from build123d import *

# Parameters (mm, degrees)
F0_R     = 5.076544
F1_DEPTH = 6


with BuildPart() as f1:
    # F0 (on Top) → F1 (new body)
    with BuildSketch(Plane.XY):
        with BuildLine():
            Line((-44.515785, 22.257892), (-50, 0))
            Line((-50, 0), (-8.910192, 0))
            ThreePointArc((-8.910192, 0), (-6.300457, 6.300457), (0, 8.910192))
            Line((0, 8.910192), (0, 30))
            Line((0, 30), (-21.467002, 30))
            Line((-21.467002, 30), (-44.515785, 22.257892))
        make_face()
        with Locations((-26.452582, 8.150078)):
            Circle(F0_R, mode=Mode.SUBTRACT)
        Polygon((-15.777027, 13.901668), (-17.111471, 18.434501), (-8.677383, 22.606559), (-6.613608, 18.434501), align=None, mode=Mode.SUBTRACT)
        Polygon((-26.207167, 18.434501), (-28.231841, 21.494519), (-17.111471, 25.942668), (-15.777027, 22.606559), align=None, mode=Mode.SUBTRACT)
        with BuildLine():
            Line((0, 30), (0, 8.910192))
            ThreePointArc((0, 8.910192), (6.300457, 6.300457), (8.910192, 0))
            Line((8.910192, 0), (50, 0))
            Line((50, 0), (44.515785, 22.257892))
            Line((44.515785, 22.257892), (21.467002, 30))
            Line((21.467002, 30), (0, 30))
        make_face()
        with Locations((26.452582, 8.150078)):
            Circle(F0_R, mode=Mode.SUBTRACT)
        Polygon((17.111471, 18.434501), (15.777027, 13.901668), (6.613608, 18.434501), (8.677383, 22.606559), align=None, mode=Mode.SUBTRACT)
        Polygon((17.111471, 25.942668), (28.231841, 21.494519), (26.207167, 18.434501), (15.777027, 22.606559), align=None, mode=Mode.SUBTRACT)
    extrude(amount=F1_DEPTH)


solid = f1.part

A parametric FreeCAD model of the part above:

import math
import FreeCAD as App
import Part
import Sketcher
Q = App.Units.Quantity


def add_polygon(sketch, points):
    """Adds a closed chain of lines whose ends are joined by coincident constraints."""
    first, n = sketch.GeometryCount, len(points)
    for a, b in zip(points, points[1:] + points[:1]):
        sketch.addGeometry(Part.LineSegment(App.Vector(*a, 0), App.Vector(*b, 0)), False)
    for i in range(n):
        sketch.addConstraint(Sketcher.Constraint("Coincident", first + i, 2, first + (i + 1) % n, 1))

doc = App.newDocument("Part")
body = doc.addObject("PartDesign::Body", "Body")

# Sketch on XY plane
sketch1 = body.newObject("Sketcher::SketchObject", "Sketch")
sketch1.AttachmentSupport = (doc.getObject("XY_Plane"), [""])
sketch1.MapMode = "FlatFace"
sketch1.addGeometry(Part.LineSegment(App.Vector(-44.5, 22.3, 0), App.Vector(-50, 0, 0)), False)  # 0
sketch1.addGeometry(Part.LineSegment(App.Vector(-50, 0, 0), App.Vector(-8.9, 0, 0)), False)  # 1
sketch1.addGeometry(Part.ArcOfCircle(Part.Circle(App.Vector(0, 0, 0), App.Vector(0, 0, 1), 8.9), math.radians(90), math.radians(180)), False)  # 2
sketch1.addGeometry(Part.ArcOfCircle(Part.Circle(App.Vector(0, 0, 0), App.Vector(0, 0, 1), 8.9), math.radians(0), math.radians(90)), False)  # 3
sketch1.addGeometry(Part.LineSegment(App.Vector(8.9, 0, 0), App.Vector(50, 0, 0)), False)  # 4
sketch1.addGeometry(Part.LineSegment(App.Vector(50, 0, 0), App.Vector(44.5, 22.3, 0)), False)  # 5
sketch1.addGeometry(Part.LineSegment(App.Vector(44.5, 22.3, 0), App.Vector(21.5, 30, 0)), False)  # 6
sketch1.addGeometry(Part.LineSegment(App.Vector(21.5, 30, 0), App.Vector(-21.5, 30, 0)), False)  # 7
sketch1.addGeometry(Part.LineSegment(App.Vector(-21.5, 30, 0), App.Vector(-44.5, 22.3, 0)), False)  # 8
sketch1.addGeometry(Part.Circle(App.Vector(-26.5, 8.2, 0), App.Vector(0, 0, 1), 5.1), False)  # 9
sketch1.addGeometry(Part.Circle(App.Vector(26.5, 8.2, 0), App.Vector(0, 0, 1), 5.1), False)  # 10
add_polygon(sketch1, [(-6.6, 18.4), (-15.8, 13.9), (-17.1, 18.4), (-8.7, 22.6)])  # lines 11-14
add_polygon(sketch1, [(-15.8, 22.6), (-26.2, 18.4), (-28.2, 21.5), (-17.1, 25.9)])  # lines 15-18
add_polygon(sketch1, [(8.7, 22.6), (17.1, 18.4), (15.8, 13.9), (6.6, 18.4)])  # lines 19-22
add_polygon(sketch1, [(15.8, 22.6), (17.1, 25.9), (28.2, 21.5), (26.2, 18.4)])  # lines 23-26
sketch1.addConstraint(Sketcher.Constraint("Coincident", 0, 2, 1, 1))
sketch1.addConstraint(Sketcher.Constraint("Coincident", 1, 2, 2, 2))
sketch1.addConstraint(Sketcher.Constraint("Tangent", 2, 1, 3, 2))
sketch1.addConstraint(Sketcher.Constraint("Coincident", 3, 1, 4, 1))
sketch1.addConstraint(Sketcher.Constraint("Coincident", 4, 2, 5, 1))
sketch1.addConstraint(Sketcher.Constraint("Coincident", 5, 2, 6, 1))
sketch1.addConstraint(Sketcher.Constraint("Coincident", 6, 2, 7, 1))
sketch1.addConstraint(Sketcher.Constraint("Coincident", 7, 2, 8, 1))
sketch1.addConstraint(Sketcher.Constraint("Coincident", 8, 2, 0, 1))
sketch1.addConstraint(Sketcher.Constraint("Horizontal", 1))
sketch1.addConstraint(Sketcher.Constraint("Horizontal", 4))
sketch1.addConstraint(Sketcher.Constraint("Horizontal", 7))
sketch1.addConstraint(Sketcher.Constraint("Coincident", 2, 3, -1, 1))
sketch1.addConstraint(Sketcher.Constraint("Equal", 2, 3))
sketch1.addConstraint(Sketcher.Constraint("Equal", 9, 10))
sketch1.addConstraint(Sketcher.Constraint("Symmetric", 0, 2, 4, 2, -1, 1))
sketch1.addConstraint(Sketcher.Constraint("Symmetric", 9, 3, 10, 3, -2))
sketch1.addConstraint(Sketcher.Constraint("Symmetric", 5, 2, 8, 2, -2))
sketch1.addConstraint(Sketcher.Constraint("Symmetric", 12, 2, 19, 2, -2))
sketch1.addConstraint(Sketcher.Constraint("Symmetric", 11, 2, 20, 2, -2))
sketch1.addConstraint(Sketcher.Constraint("Symmetric", 14, 2, 21, 2, -2))
sketch1.addConstraint(Sketcher.Constraint("Symmetric", 13, 2, 22, 2, -2))
sketch1.addConstraint(Sketcher.Constraint("Symmetric", 17, 2, 23, 2, -2))
sketch1.addConstraint(Sketcher.Constraint("Symmetric", 16, 2, 24, 2, -2))
sketch1.addConstraint(Sketcher.Constraint("Symmetric", 15, 2, 25, 2, -2))
sketch1.addConstraint(Sketcher.Constraint("Symmetric", 18, 2, 26, 2, -2))
sketch1.addConstraint(Sketcher.Constraint("PointOnObject", 0, 2, -1))
sketch1.addConstraint(Sketcher.Constraint("PointOnObject", 2, 1, -2))
sketch1.addConstraint(Sketcher.Constraint("Parallel", 11, 13))
sketch1.addConstraint(Sketcher.Constraint("Perpendicular", 13, 14))
sketch1.addConstraint(Sketcher.Constraint("Parallel", 15, 17))
sketch1.addConstraint(Sketcher.Constraint("Perpendicular", 17, 18))
sketch1.addConstraint(Sketcher.Constraint("Horizontal", 12, 2, 14, 2))
sketch1.addConstraint(Sketcher.Constraint("Horizontal", 14, 2, 15, 2))
sketch1.addConstraint(Sketcher.Constraint("Horizontal", 13, 2, 18, 2))
sketch1.addConstraint(Sketcher.Constraint("Vertical", 12, 2, 17, 2))
sketch1.addConstraint(Sketcher.Constraint("Vertical", 11, 2, 18, 2))
sketch1.addConstraint(Sketcher.Constraint("Equal", 6, 8))
sketch1.addConstraint(Sketcher.Constraint("DistanceX", 0, 2, -1, 1, Q("50 mm")))
sketch1.addConstraint(Sketcher.Constraint("DistanceY", -1, 1, 6, 2, Q("30 mm")))
sketch1.addConstraint(Sketcher.Constraint("Diameter", 9, Q("10.153088 mm")))
sketch1.addConstraint(Sketcher.Constraint("Radius", 2, Q("8.910193 mm")))
sketch1.addConstraint(Sketcher.Constraint("DistanceX", 2, 3, 6, 2, Q("21.467001 mm")))
sketch1.addConstraint(Sketcher.Constraint("DistanceY", 20, 2, 23, 2, Q("12.041 mm")))
sketch1.addConstraint(Sketcher.Constraint("Distance", 16, Q("3.669198 mm")))
sketch1.addConstraint(Sketcher.Constraint("Distance", 18, Q("3.5931 mm")))
sketch1.addConstraint(Sketcher.Constraint("DistanceY", -1, 1, 12, 2, Q("18.434501 mm")))
sketch1.addConstraint(Sketcher.Constraint("DistanceY", 2, 1, 5, 2, Q("13.3477 mm")))
sketch1.addConstraint(Sketcher.Constraint("Distance", 6, Q("24.31433 mm")))
sketch1.addConstraint(Sketcher.Constraint("Distance", 11, Q("10.223249 mm")))
sketch1.addConstraint(Sketcher.Constraint("Distance", 12, Q("4.725179 mm")))
sketch1.addConstraint(Sketcher.Constraint("DistanceX", 9, 3, -1, 1, Q("26.452582 mm")))
sketch1.addConstraint(Sketcher.Constraint("DistanceX", 12, 2, -1, 1, Q("17.111471 mm")))
sketch1.addConstraint(Sketcher.Constraint("DistanceY", 3, 3, 9, 3, Q("8.150079 mm")))
pad1 = body.newObject("PartDesign::Pad", "Pad")
pad1.Profile = sketch1
pad1.Length = 6

doc.recompute()
